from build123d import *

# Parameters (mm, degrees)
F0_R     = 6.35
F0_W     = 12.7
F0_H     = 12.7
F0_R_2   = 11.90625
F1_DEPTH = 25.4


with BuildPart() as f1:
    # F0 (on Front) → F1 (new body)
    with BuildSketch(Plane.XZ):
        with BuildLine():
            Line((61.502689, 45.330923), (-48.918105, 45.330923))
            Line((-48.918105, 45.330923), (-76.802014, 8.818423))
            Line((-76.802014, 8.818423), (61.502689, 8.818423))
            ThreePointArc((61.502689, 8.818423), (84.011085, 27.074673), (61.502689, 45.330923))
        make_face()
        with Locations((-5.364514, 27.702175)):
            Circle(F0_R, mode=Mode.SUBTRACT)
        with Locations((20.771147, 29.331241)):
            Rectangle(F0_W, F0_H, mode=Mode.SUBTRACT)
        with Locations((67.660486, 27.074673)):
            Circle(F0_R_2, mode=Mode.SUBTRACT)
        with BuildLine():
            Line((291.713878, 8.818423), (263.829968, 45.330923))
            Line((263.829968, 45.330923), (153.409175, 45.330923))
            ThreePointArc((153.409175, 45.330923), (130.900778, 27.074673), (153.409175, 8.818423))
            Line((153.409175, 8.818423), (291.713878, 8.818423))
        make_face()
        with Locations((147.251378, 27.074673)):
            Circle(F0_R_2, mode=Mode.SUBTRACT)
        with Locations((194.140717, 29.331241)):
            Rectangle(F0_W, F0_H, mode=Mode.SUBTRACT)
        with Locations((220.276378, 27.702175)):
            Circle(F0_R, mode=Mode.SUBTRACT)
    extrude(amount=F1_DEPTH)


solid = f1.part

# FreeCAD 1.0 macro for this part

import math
import FreeCAD as App
import Part
import Sketcher

V = App.Vector
Q = App.Units.Quantity

doc = App.newDocument("Part")
body = doc.addObject("PartDesign::Body", "Body")
body.AllowCompound = True

# Sketch on XZ plane
sketch1 = body.newObject("Sketcher::SketchObject", "Sketch")
sketch1.AttachmentSupport = (doc.getObject("XZ_Plane"), [""])
sketch1.MapMode = "FlatFace"
sketch1.addGeometry([
    Part.LineSegment(V(61.502689, 45.330923, 0), V(-48.918105, 45.330923, 0)),  # 0
    Part.LineSegment(V(-48.918105, 45.330923, 0), V(-76.802014, 8.818423, 0)),  # 1
    Part.LineSegment(V(-76.802014, 8.818423, 0), V(61.502689, 8.818423, 0)),  # 2
    Part.ArcOfCircle(Part.Circle(V(65.353191, 27.074673, 0), V(0, 0, 1), 18.657894), math.radians(-101.909935), math.radians(101.909935)),  # 3
    Part.Circle(V(-5.364514, 27.702175, 0), V(0, 0, 1), 6.35),  # 4
    Part.LineSegment(V(27.121147, 22.981241, 0), V(14.421147, 22.981241, 0)),  # 5
    Part.LineSegment(V(14.421147, 22.981241, 0), V(14.421147, 35.681241, 0)),  # 6
    Part.LineSegment(V(14.421147, 35.681241, 0), V(27.121147, 35.681241, 0)),  # 7
    Part.LineSegment(V(27.121147, 35.681241, 0), V(27.121147, 22.981241, 0)),  # 8
    Part.Circle(V(67.660486, 27.074673, 0), V(0, 0, 1), 11.90625),  # 9
    Part.LineSegment(V(291.713878, 8.818423, 0), V(263.829968, 45.330923, 0)),  # 10
    Part.LineSegment(V(263.829968, 45.330923, 0), V(153.409175, 45.330923, 0)),  # 11
    Part.ArcOfCircle(Part.Circle(V(149.558673, 27.074673, 0), V(0, 0, 1), 18.657895), math.radians(78.090063), math.radians(281.909937)),  # 12
    Part.LineSegment(V(153.409175, 8.818423, 0), V(291.713878, 8.818423, 0)),  # 13
    Part.Circle(V(147.251378, 27.074673, 0), V(0, 0, 1), 11.90625),  # 14
    Part.LineSegment(V(200.490717, 22.981241, 0), V(187.790717, 22.981241, 0)),  # 15
    Part.LineSegment(V(187.790717, 22.981241, 0), V(187.790717, 35.681241, 0)),  # 16
    Part.LineSegment(V(187.790717, 35.681241, 0), V(200.490717, 35.681241, 0)),  # 17
    Part.LineSegment(V(200.490717, 35.681241, 0), V(200.490717, 22.981241, 0)),  # 18
    Part.Circle(V(220.276378, 27.702175, 0), V(0, 0, 1), 6.35),  # 19
], False)
sketch1.addConstraint([
    Sketcher.Constraint("Coincident", 0, 2, 1, 1),
    Sketcher.Constraint("Coincident", 1, 2, 2, 1),
    Sketcher.Constraint("Coincident", 2, 2, 3, 1),
    Sketcher.Constraint("Coincident", 3, 2, 0, 1),
    Sketcher.Constraint("Coincident", 5, 2, 6, 1),
    Sketcher.Constraint("Coincident", 6, 2, 7, 1),
    Sketcher.Constraint("Coincident", 7, 2, 8, 1),
    Sketcher.Constraint("Coincident", 8, 2, 5, 1),
    Sketcher.Constraint("Coincident", 10, 2, 11, 1),
    Sketcher.Constraint("Coincident", 11, 2, 12, 1),
    Sketcher.Constraint("Coincident", 12, 2, 13, 1),
    Sketcher.Constraint("Coincident", 13, 2, 10, 1),
    Sketcher.Constraint("Coincident", 15, 2, 16, 1),
    Sketcher.Constraint("Coincident", 16, 2, 17, 1),
    Sketcher.Constraint("Coincident", 17, 2, 18, 1),
    Sketcher.Constraint("Coincident", 18, 2, 15, 1),
    Sketcher.Constraint("Horizontal", 0),
    Sketcher.Constraint("Horizontal", 2),
    Sketcher.Constraint("Horizontal", 5),
    Sketcher.Constraint("Vertical", 6),
    Sketcher.Constraint("Horizontal", 7),
    Sketcher.Constraint("Vertical", 8),
    Sketcher.Constraint("Horizontal", 11),
    Sketcher.Constraint("Horizontal", 13),
    Sketcher.Constraint("Horizontal", 15),
    Sketcher.Constraint("Vertical", 16),
    Sketcher.Constraint("Horizontal", 17),
    Sketcher.Constraint("Vertical", 18),
    Sketcher.Constraint("Equal", 3, 12),
    Sketcher.Constraint("Equal", 9, 14),
    Sketcher.Constraint("Equal", 4, 19),
    Sketcher.Constraint("Horizontal", 3, 3, 9, 3),
    Sketcher.Constraint("Horizontal", 9, 3, 12, 3),
    Sketcher.Constraint("Horizontal", 12, 3, 14, 3),
    Sketcher.Constraint("Horizontal", 4, 3, 19, 3),
    Sketcher.Constraint("Horizontal", 3, 2, 10, 2),
    Sketcher.Constraint("Horizontal", 2, 2, 12, 2),
    Sketcher.Constraint("Horizontal", 8, 2, 15, 2),
    Sketcher.Constraint("Horizontal", 7, 2, 16, 2),
    Sketcher.Constraint("Vertical", 2, 2, 3, 2),
    Sketcher.Constraint("Equal", 0, 11),
    Sketcher.Constraint("Equal", 2, 13),
    Sketcher.Constraint("Equal", 7, 15),
    Sketcher.Constraint("Equal", 17, 6),
    Sketcher.Constraint("Diameter", 4, Q("0.5 in")),
    Sketcher.Constraint("Diameter", 9, Q("0.9375 in")),
    Sketcher.Constraint("DistanceX", 5, 2, 5, 1, Q("0.5 in")),
    Sketcher.Constraint("DistanceX", 4, 3, 9, 3, Q("2.875 in")),
    Sketcher.Constraint("DistanceX", 14, 3, 19, 3, Q("2.875 in")),
    Sketcher.Constraint("DistanceY", 3, 3, 0, 2, Q("0.71875 in")),
    Sketcher.Constraint("DistanceX", 1, 2, 4, 3, Q("2.8125 in")),
    Sketcher.Constraint("DistanceX", 19, 3, 13, 2, Q("2.8125 in")),
    Sketcher.Constraint("Radius", 3, Q("18.657894 mm")),
    Sketcher.Constraint("DistanceY", 3, 3, 4, 3, Q("0.627502 mm")),
    Sketcher.Constraint("DistanceX", 0, 2, 0, 1, Q("110.420794 mm")),
    Sketcher.Constraint("DistanceX", 2, 1, 2, 2, Q("138.304703 mm")),
    Sketcher.Constraint("DistanceX", -1, 1, 3, 3, Q("65.353191 mm")),
    Sketcher.Constraint("DistanceX", -1, 1, 19, 3, Q("220.276378 mm")),
    Sketcher.Constraint("DistanceY", -1, 1, 5, 2, Q("22.981241 mm")),
    Sketcher.Constraint("DistanceX", 4, 3, 5, 2, Q("19.785661 mm")),
    Sketcher.Constraint("DistanceY", 2, 2, 5, 2, Q("14.162818 mm")),
    Sketcher.Constraint("DistanceX", 15, 2, 19, 3, Q("32.485661 mm")),
])
pad1 = body.newObject("PartDesign::Pad", "Pad")
pad1.Profile = sketch1
pad1.Length = Q("1 in")

doc.recompute()
